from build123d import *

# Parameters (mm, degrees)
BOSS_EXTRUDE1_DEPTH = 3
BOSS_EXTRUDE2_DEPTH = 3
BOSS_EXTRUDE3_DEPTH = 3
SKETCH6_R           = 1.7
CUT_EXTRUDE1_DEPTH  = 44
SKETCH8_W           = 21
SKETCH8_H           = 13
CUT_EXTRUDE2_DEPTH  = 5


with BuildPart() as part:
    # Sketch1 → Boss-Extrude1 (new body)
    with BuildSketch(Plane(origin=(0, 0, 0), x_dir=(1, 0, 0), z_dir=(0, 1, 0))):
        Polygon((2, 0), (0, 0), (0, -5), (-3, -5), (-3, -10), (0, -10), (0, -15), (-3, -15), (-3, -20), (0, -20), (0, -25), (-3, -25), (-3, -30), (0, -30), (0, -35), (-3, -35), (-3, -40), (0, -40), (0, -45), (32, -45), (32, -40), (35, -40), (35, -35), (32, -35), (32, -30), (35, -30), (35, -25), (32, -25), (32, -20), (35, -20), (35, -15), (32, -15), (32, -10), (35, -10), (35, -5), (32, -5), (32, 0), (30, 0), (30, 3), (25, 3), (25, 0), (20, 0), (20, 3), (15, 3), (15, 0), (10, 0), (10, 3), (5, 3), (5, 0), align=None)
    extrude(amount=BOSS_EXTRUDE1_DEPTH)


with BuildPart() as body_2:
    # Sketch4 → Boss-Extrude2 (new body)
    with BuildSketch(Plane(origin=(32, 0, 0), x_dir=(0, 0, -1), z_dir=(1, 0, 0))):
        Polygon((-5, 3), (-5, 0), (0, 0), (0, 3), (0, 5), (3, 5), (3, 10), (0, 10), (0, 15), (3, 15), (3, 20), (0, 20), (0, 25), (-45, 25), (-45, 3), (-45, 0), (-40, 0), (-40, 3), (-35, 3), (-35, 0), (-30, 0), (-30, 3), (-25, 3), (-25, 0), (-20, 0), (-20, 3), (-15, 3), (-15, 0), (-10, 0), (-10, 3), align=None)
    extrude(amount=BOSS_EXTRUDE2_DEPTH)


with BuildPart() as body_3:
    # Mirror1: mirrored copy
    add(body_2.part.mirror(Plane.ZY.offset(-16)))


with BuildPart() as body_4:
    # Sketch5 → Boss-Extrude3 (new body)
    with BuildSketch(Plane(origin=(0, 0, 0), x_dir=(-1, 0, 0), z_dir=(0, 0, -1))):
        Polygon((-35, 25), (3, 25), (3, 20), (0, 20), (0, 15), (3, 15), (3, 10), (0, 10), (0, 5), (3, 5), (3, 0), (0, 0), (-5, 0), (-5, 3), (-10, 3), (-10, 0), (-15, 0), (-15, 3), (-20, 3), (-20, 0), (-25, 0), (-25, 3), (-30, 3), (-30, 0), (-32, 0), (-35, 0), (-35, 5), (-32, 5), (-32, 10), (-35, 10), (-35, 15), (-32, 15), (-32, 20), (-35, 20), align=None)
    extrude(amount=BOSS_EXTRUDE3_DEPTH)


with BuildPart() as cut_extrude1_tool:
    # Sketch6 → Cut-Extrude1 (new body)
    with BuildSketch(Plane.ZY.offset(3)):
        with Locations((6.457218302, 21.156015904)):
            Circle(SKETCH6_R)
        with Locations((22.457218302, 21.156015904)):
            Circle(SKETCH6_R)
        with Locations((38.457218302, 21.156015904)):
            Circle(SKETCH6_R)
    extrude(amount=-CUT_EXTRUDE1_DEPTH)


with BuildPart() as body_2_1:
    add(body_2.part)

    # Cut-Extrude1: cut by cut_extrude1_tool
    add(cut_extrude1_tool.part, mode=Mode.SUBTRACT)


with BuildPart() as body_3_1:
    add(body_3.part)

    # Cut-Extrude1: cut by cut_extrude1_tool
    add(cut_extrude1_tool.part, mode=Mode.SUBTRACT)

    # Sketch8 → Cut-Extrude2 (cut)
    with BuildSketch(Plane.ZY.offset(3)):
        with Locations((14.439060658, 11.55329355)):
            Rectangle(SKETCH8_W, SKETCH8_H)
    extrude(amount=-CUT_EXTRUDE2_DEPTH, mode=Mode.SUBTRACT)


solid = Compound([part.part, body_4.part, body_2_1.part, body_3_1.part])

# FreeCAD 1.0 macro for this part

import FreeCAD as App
import Part
import Sketcher

V = App.Vector


def add_polygon(sketch, points):
    """Adds a closed chain of lines whose ends are joined by coincident constraints."""
    first, n = sketch.GeometryCount, len(points)
    for a, b in zip(points, points[1:] + points[:1]):
        sketch.addGeometry(Part.LineSegment(App.Vector(*a, 0), App.Vector(*b, 0)), False)
    for i in range(n):
        sketch.addConstraint(Sketcher.Constraint("Coincident", first + i, 2, first + (i + 1) % n, 1))

doc = App.newDocument("Part")
params = doc.addObject("Spreadsheet::Sheet", "Params")
for row, (alias, value) in enumerate([
    ("sketch1_width", "3 mm"),
    ("sketch1_width2", "32 mm"),
    ("sketch1_width3", "2 mm"),
    ("pad1_length", "3 mm"),
    ("sketch2_width", "3 mm"),
    ("sketch2_width2", "5 mm"),
    ("pad2_length", "3 mm"),
    ("sketch3_width", "38 mm"),
    ("sketch3_width2", "3 mm"),
    ("sketch3_width3", "5 mm"),
    ("pad3_length", "3 mm"),
    ("sketch4_diameter", "3.4 mm"),
    ("pad4_length", "44 mm"),
    ("sketch5_width", "13 mm"),
    ("sketch5_height", "21 mm"),
    ("pocket1_length", "5 mm"),
], start=1):
    params.set(f"A{row}", alias)
    params.set(f"B{row}", "=" + value)
    params.setAlias(f"B{row}", alias)

body = doc.addObject("PartDesign::Body", "Body")

sketch1 = doc.addObject("Sketcher::SketchObject", "Sketch")
body.addObject(sketch1)
sketch1.AttachmentSupport = (doc.XZ_Plane, [""])
sketch1.MapMode = "FlatFace"
add_polygon(sketch1, [(0, 0), (0, 5), (-3, 5), (-3, 10), (0, 10), (0, 15), (-3, 15), (-3, 20), (0, 20), (0, 25), (-3, 25), (-3, 30), (0, 30), (0, 35), (-3, 35), (-3, 40), (0, 40), (0, 45), (32, 45), (32, 40), (35, 40), (35, 35), (32, 35), (32, 30), (35, 30), (35, 25), (32, 25), (32, 20), (35, 20), (35, 15), (32, 15), (32, 10), (35, 10), (35, 5), (32, 5), (32, 0), (30, 0), (30, -3), (25, -3), (25, 0), (20, 0), (20, -3), (15, -3), (15, 0), (10, 0), (10, -3), (5, -3), (5, 0)])
sketch1.addConstraint([
    Sketcher.Constraint("Vertical", 0),
    Sketcher.Constraint("Horizontal", 1),
    Sketcher.Constraint("Vertical", 2),
    Sketcher.Constraint("Horizontal", 3),
    Sketcher.Constraint("Vertical", 4),
    Sketcher.Constraint("Horizontal", 5),
    Sketcher.Constraint("Vertical", 6),
    Sketcher.Constraint("Horizontal", 7),
    Sketcher.Constraint("Vertical", 8),
    Sketcher.Constraint("Horizontal", 9),
    Sketcher.Constraint("Vertical", 10),
    Sketcher.Constraint("Horizontal", 11),
    Sketcher.Constraint("Vertical", 12),
    Sketcher.Constraint("Horizontal", 13),
    Sketcher.Constraint("Vertical", 14),
    Sketcher.Constraint("Horizontal", 15),
    Sketcher.Constraint("Vertical", 16),
    Sketcher.Constraint("Horizontal", 17),
    Sketcher.Constraint("Vertical", 18),
    Sketcher.Constraint("Horizontal", 19),
    Sketcher.Constraint("Vertical", 20),
    Sketcher.Constraint("Horizontal", 21),
    Sketcher.Constraint("Vertical", 22),
    Sketcher.Constraint("Horizontal", 23),
    Sketcher.Constraint("Vertical", 24),
    Sketcher.Constraint("Horizontal", 25),
    Sketcher.Constraint("Vertical", 26),
    Sketcher.Constraint("Horizontal", 27),
    Sketcher.Constraint("Vertical", 28),
    Sketcher.Constraint("Horizontal", 29),
    Sketcher.Constraint("Vertical", 30),
    Sketcher.Constraint("Horizontal", 31),
    Sketcher.Constraint("Vertical", 32),
    Sketcher.Constraint("Horizontal", 33),
    Sketcher.Constraint("Vertical", 34),
    Sketcher.Constraint("Horizontal", 35),
    Sketcher.Constraint("Vertical", 36),
    Sketcher.Constraint("Horizontal", 37),
    Sketcher.Constraint("Vertical", 38),
    Sketcher.Constraint("Horizontal", 39),
    Sketcher.Constraint("Vertical", 40),
    Sketcher.Constraint("Horizontal", 41),
    Sketcher.Constraint("Vertical", 42),
    Sketcher.Constraint("Horizontal", 43),
    Sketcher.Constraint("Vertical", 44),
    Sketcher.Constraint("Horizontal", 45),
    Sketcher.Constraint("Vertical", 46),
    Sketcher.Constraint("Horizontal", 47),
    Sketcher.Constraint("Coincident", 47, 2, -1, 1),
    Sketcher.Constraint("PointOnObject", 3, 2, -2),
    Sketcher.Constraint("PointOnObject", 7, 2, -2),
    Sketcher.Constraint("PointOnObject", 11, 2, -2),
    Sketcher.Constraint("PointOnObject", 15, 2, -2),
    Sketcher.Constraint("PointOnObject", 34, 2, -1),
    Sketcher.Constraint("PointOnObject", 38, 2, -1),
    Sketcher.Constraint("PointOnObject", 42, 2, -1),
    Sketcher.Constraint("Horizontal", 15, 2, 18, 2),
    Sketcher.Constraint("Horizontal", 13, 2, 20, 2),
    Sketcher.Constraint("Horizontal", 11, 2, 22, 2),
    Sketcher.Constraint("Horizontal", 9, 2, 24, 2),
    Sketcher.Constraint("Horizontal", 7, 2, 26, 2),
    Sketcher.Constraint("Horizontal", 5, 2, 28, 2),
    Sketcher.Constraint("Horizontal", 3, 2, 30, 2),
    Sketcher.Constraint("Horizontal", 1, 2, 32, 2),
    Sketcher.Constraint("Horizontal", 37, 2, 40, 2),
    Sketcher.Constraint("Horizontal", 41, 2, 44, 2),
    Sketcher.Constraint("Vertical", 2, 2, 5, 2),
    Sketcher.Constraint("Vertical", 6, 2, 9, 2),
    Sketcher.Constraint("Vertical", 10, 2, 13, 2),
    Sketcher.Constraint("Vertical", 18, 2, 21, 2),
    Sketcher.Constraint("Vertical", 20, 2, 23, 2),
    Sketcher.Constraint("Vertical", 22, 2, 25, 2),
    Sketcher.Constraint("Vertical", 24, 2, 27, 2),
    Sketcher.Constraint("Vertical", 26, 2, 29, 2),
    Sketcher.Constraint("Vertical", 28, 2, 31, 2),
    Sketcher.Constraint("Vertical", 30, 2, 33, 2),
    Sketcher.Constraint("Equal", 15, 19),
    Sketcher.Constraint("Equal", 37, 39),
    Sketcher.Constraint("Equal", 39, 41),
    Sketcher.Constraint("Equal", 41, 43),
    Sketcher.Constraint("Equal", 43, 45),
    Sketcher.Constraint("Equal", 45, 47),
    Sketcher.Constraint("Equal", 47, 0),
    Sketcher.Constraint("Equal", 0, 2),
    Sketcher.Constraint("Equal", 2, 4),
    Sketcher.Constraint("Equal", 4, 6),
    Sketcher.Constraint("Equal", 6, 8),
    Sketcher.Constraint("Equal", 8, 10),
    Sketcher.Constraint("Equal", 10, 12),
    Sketcher.Constraint("Equal", 12, 14),
    Sketcher.Constraint("Equal", 14, 16),
    Sketcher.Constraint("Equal", 33, 36),
    Sketcher.Constraint("DistanceX", 1, 2, 1, 1, 3.0),
    Sketcher.Constraint("DistanceX", 17, 1, 17, 2, 32.0),
    Sketcher.Constraint("DistanceX", 35, 2, 35, 1, 2.0),
])
sketch1.setExpression("Constraints[140]", "Params.sketch1_width")
sketch1.setExpression("Constraints[141]", "Params.sketch1_width2")
sketch1.setExpression("Constraints[142]", "Params.sketch1_width3")
pad1 = doc.addObject("PartDesign::Pad", "Pad")
body.addObject(pad1)
pad1.Profile = sketch1
pad1.setExpression("Length", "Params.pad1_length")
pad1.Reversed = True
body2 = doc.addObject("PartDesign::Body", "Body001")

sketch2 = doc.addObject("Sketcher::SketchObject", "Sketch001")
body2.addObject(sketch2)
sketch2.AttachmentSupport = (doc.getObject("YZ_Plane001"), [""])
sketch2.MapMode = "FlatFace"
sketch2.AttachmentOffset = App.Placement(V(0, 0, 32), App.Rotation())
add_polygon(sketch2, [(3, 5), (0, 5), (0, 0), (5, 0), (5, -3), (10, -3), (10, 0), (15, 0), (15, -3), (20, -3), (20, 0), (25, 0), (25, 45), (0, 45), (0, 40), (3, 40), (3, 35), (0, 35), (0, 30), (3, 30), (3, 25), (0, 25), (0, 20), (3, 20), (3, 15), (0, 15), (0, 10), (3, 10)])
sketch2.addConstraint([
    Sketcher.Constraint("Horizontal", 0),
    Sketcher.Constraint("Vertical", 1),
    Sketcher.Constraint("Horizontal", 2),
    Sketcher.Constraint("Vertical", 3),
    Sketcher.Constraint("Horizontal", 4),
    Sketcher.Constraint("Vertical", 5),
    Sketcher.Constraint("Horizontal", 6),
    Sketcher.Constraint("Vertical", 7),
    Sketcher.Constraint("Horizontal", 8),
    Sketcher.Constraint("Vertical", 9),
    Sketcher.Constraint("Horizontal", 10),
    Sketcher.Constraint("Vertical", 11),
    Sketcher.Constraint("Horizontal", 12),
    Sketcher.Constraint("Vertical", 13),
    Sketcher.Constraint("Horizontal", 14),
    Sketcher.Constraint("Vertical", 15),
    Sketcher.Constraint("Horizontal", 16),
    Sketcher.Constraint("Vertical", 17),
    Sketcher.Constraint("Horizontal", 18),
    Sketcher.Constraint("Vertical", 19),
    Sketcher.Constraint("Horizontal", 20),
    Sketcher.Constraint("Vertical", 21),
    Sketcher.Constraint("Horizontal", 22),
    Sketcher.Constraint("Vertical", 23),
    Sketcher.Constraint("Horizontal", 24),
    Sketcher.Constraint("Vertical", 25),
    Sketcher.Constraint("Horizontal", 26),
    Sketcher.Constraint("Vertical", 27),
    Sketcher.Constraint("Coincident", 1, 2, -1, 1),
    Sketcher.Constraint("PointOnObject", 5, 2, -1),
    Sketcher.Constraint("PointOnObject", 9, 2, -1),
    Sketcher.Constraint("PointOnObject", 12, 2, -2),
    Sketcher.Constraint("PointOnObject", 16, 2, -2),
    Sketcher.Constraint("PointOnObject", 20, 2, -2),
    Sketcher.Constraint("PointOnObject", 24, 2, -2),
    Sketcher.Constraint("Horizontal", 4, 2, 7, 2),
    Sketcher.Constraint("Vertical", 15, 2, 18, 2),
    Sketcher.Constraint("Vertical", 19, 2, 22, 2),
    Sketcher.Constraint("Vertical", 23, 2, 26, 2),
    Sketcher.Constraint("Equal", 2, 4),
    Sketcher.Constraint("Equal", 4, 6),
    Sketcher.Constraint("Equal", 6, 8),
    Sketcher.Constraint("Equal", 8, 10),
    Sketcher.Constraint("Equal", 10, 1),
    Sketcher.Constraint("Equal", 26, 3),
    Sketcher.Constraint("Equal", 1, 13),
    Sketcher.Constraint("Equal", 13, 15),
    Sketcher.Constraint("Equal", 15, 17),
    Sketcher.Constraint("Equal", 17, 19),
    Sketcher.Constraint("Equal", 19, 21),
    Sketcher.Constraint("Equal", 21, 23),
    Sketcher.Constraint("Equal", 23, 25),
    Sketcher.Constraint("Equal", 25, 27),
    Sketcher.Constraint("DistanceX", 0, 2, 0, 1, 3.0),
    Sketcher.Constraint("DistanceX", 2, 1, 2, 2, 5.0),
])
sketch2.setExpression("Constraints[81]", "Params.sketch2_width")
sketch2.setExpression("Constraints[82]", "Params.sketch2_width2")
pad2 = doc.addObject("PartDesign::Pad", "Pad001")
body2.addObject(pad2)
pad2.Profile = sketch2
pad2.setExpression("Length", "Params.pad2_length")
body3 = doc.addObject("PartDesign::Body", "Body002")
doc.recompute()

mirroring = doc.addObject("Part::Mirroring", "Mirroring")
mirroring.Source = body2
mirroring.Base = V(16, 0, 0)
mirroring.Normal = V(-1, 0, 0)
body3.BaseFeature = mirroring
doc.recompute()
body4 = doc.addObject("PartDesign::Body", "Body003")

sketch3 = doc.addObject("Sketcher::SketchObject", "Sketch002")
body4.addObject(sketch3)
sketch3.AttachmentSupport = (doc.getObject("XY_Plane003"), [""])
sketch3.MapMode = "FlatFace"
add_polygon(sketch3, [(-3, 25), (35, 25), (35, 20), (32, 20), (32, 15), (35, 15), (35, 10), (32, 10), (32, 5), (35, 5), (35, 0), (30, 0), (30, 3), (25, 3), (25, 0), (20, 0), (20, 3), (15, 3), (15, 0), (10, 0), (10, 3), (5, 3), (5, 0), (-3, 0), (-3, 5), (0, 5), (0, 10), (-3, 10), (-3, 15), (0, 15), (0, 20), (-3, 20)])
sketch3.addConstraint([
    Sketcher.Constraint("Horizontal", 0),
    Sketcher.Constraint("Vertical", 1),
    Sketcher.Constraint("Horizontal", 2),
    Sketcher.Constraint("Vertical", 3),
    Sketcher.Constraint("Horizontal", 4),
    Sketcher.Constraint("Vertical", 5),
    Sketcher.Constraint("Horizontal", 6),
    Sketcher.Constraint("Vertical", 7),
    Sketcher.Constraint("Horizontal", 8),
    Sketcher.Constraint("Vertical", 9),
    Sketcher.Constraint("Horizontal", 10),
    Sketcher.Constraint("Vertical", 11),
    Sketcher.Constraint("Horizontal", 12),
    Sketcher.Constraint("Vertical", 13),
    Sketcher.Constraint("Horizontal", 14),
    Sketcher.Constraint("Vertical", 15),
    Sketcher.Constraint("Horizontal", 16),
    Sketcher.Constraint("Vertical", 17),
    Sketcher.Constraint("Horizontal", 18),
    Sketcher.Constraint("Vertical", 19),
    Sketcher.Constraint("Horizontal", 20),
    Sketcher.Constraint("Vertical", 21),
    Sketcher.Constraint("Horizontal", 22),
    Sketcher.Constraint("Vertical", 23),
    Sketcher.Constraint("Horizontal", 24),
    Sketcher.Constraint("Vertical", 25),
    Sketcher.Constraint("Horizontal", 26),
    Sketcher.Constraint("Vertical", 27),
    Sketcher.Constraint("Horizontal", 28),
    Sketcher.Constraint("Vertical", 29),
    Sketcher.Constraint("Horizontal", 30),
    Sketcher.Constraint("Vertical", 31),
    Sketcher.Constraint("PointOnObject", 9, 2, -1),
    Sketcher.Constraint("PointOnObject", 13, 2, -1),
    Sketcher.Constraint("PointOnObject", 17, 2, -1),
    Sketcher.Constraint("PointOnObject", 21, 2, -1),
    Sketcher.Constraint("PointOnObject", 24, 2, -2),
    Sketcher.Constraint("PointOnObject", 28, 2, -2),
    Sketcher.Constraint("Horizontal", 12, 2, 15, 2),
    Sketcher.Constraint("Horizontal", 16, 2, 19, 2),
    Sketcher.Constraint("Horizontal", 8, 2, 23, 2),
    Sketcher.Constraint("Horizontal", 6, 2, 25, 2),
    Sketcher.Constraint("Horizontal", 4, 2, 27, 2),
    Sketcher.Constraint("Horizontal", 2, 2, 29, 2),
    Sketcher.Constraint("Vertical", 1, 2, 4, 2),
    Sketcher.Constraint("Vertical", 3, 2, 6, 2),
    Sketcher.Constraint("Vertical", 5, 2, 8, 2),
    Sketcher.Constraint("Vertical", 23, 2, 26, 2),
    Sketcher.Constraint("Vertical", 27, 2, 30, 2),
    Sketcher.Constraint("Equal", 10, 12),
    Sketcher.Constraint("Equal", 12, 14),
    Sketcher.Constraint("Equal", 14, 16),
    Sketcher.Constraint("Equal", 16, 18),
    Sketcher.Constraint("Equal", 18, 20),
    Sketcher.Constraint("Equal", 8, 24),
    Sketcher.Constraint("Equal", 20, 1),
    Sketcher.Constraint("Equal", 1, 3),
    Sketcher.Constraint("Equal", 3, 5),
    Sketcher.Constraint("Equal", 5, 7),
    Sketcher.Constraint("Equal", 7, 9),
    Sketcher.Constraint("Equal", 30, 11),
    Sketcher.Constraint("DistanceX", 0, 1, 0, 2, 38.0),
    Sketcher.Constraint("DistanceX", 2, 2, 2, 1, 3.0),
    Sketcher.Constraint("DistanceX", 10, 2, 10, 1, 5.0),
])
sketch3.setExpression("Constraints[93]", "Params.sketch3_width")
sketch3.setExpression("Constraints[94]", "Params.sketch3_width2")
sketch3.setExpression("Constraints[95]", "Params.sketch3_width3")
pad3 = doc.addObject("PartDesign::Pad", "Pad002")
body4.addObject(pad3)
pad3.Profile = sketch3
pad3.setExpression("Length", "Params.pad3_length")
pad3.Reversed = True
body5 = doc.addObject("PartDesign::Body", "Body004")
body5.AllowCompound = True

sketch4 = doc.addObject("Sketcher::SketchObject", "Sketch003")
body5.addObject(sketch4)
sketch4.AttachmentSupport = (doc.getObject("YZ_Plane004"), [""])
sketch4.MapMode = "FlatFace"
sketch4.AttachmentOffset = App.Placement(V(0, 0, -3), App.Rotation())
sketch4.addGeometry([
    Part.Circle(V(21.2, 6.5, 0), V(0, 0, 1), 1.7),
    Part.Circle(V(21.2, 22.5, 0), V(0, 0, 1), 1.7),
    Part.Circle(V(21.2, 38.5, 0), V(0, 0, 1), 1.7),
], False)
sketch4.addConstraint([
    Sketcher.Constraint("Equal", 0, 1),
    Sketcher.Constraint("Equal", 1, 2),
    Sketcher.Constraint("Vertical", 0, 3, 1, 3),
    Sketcher.Constraint("Vertical", 1, 3, 2, 3),
    Sketcher.Constraint("Diameter", 0, 3.4),
    Sketcher.Constraint("DistanceY", 0, 3, 1, 3, 16.0),
    Sketcher.Constraint("DistanceY", 1, 3, 2, 3, 16.0),
    Sketcher.Constraint("DistanceY", -1, 1, 0, 3, 6.457218),
    Sketcher.Constraint("DistanceX", -1, 1, 0, 3, 21.156016),
])
sketch4.setExpression("Constraints[4]", "Params.sketch4_diameter")
pad4 = doc.addObject("PartDesign::Pad", "Pad003")
body5.addObject(pad4)
pad4.Profile = sketch4
pad4.setExpression("Length", "Params.pad4_length")
doc.recompute()

body6 = doc.addObject("PartDesign::Body", "Body005")
body6.BaseFeature = body5
boolean = doc.addObject("PartDesign::Boolean", "Boolean")
body2.addObject(boolean)
boolean.Type = "Cut"
boolean.addObjects([body6])
doc.recompute()

boolean2 = doc.addObject("PartDesign::Boolean", "Boolean001")
body3.addObject(boolean2)
boolean2.Type = "Cut"
boolean2.addObjects([body5])

sketch5 = doc.addObject("Sketcher::SketchObject", "Sketch004")
body3.addObject(sketch5)
sketch5.AttachmentSupport = (doc.getObject("YZ_Plane002"), [""])
sketch5.MapMode = "FlatFace"
sketch5.AttachmentOffset = App.Placement(V(0, 0, -3), App.Rotation())
add_polygon(sketch5, [(18, 4), (5, 4), (5, 25), (18, 25)])
sketch5.addConstraint([
    Sketcher.Constraint("Horizontal", 0),
    Sketcher.Constraint("Vertical", 1),
    Sketcher.Constraint("Horizontal", 2),
    Sketcher.Constraint("Vertical", 3),
    Sketcher.Constraint("DistanceX", 0, 2, 0, 1, 13.0),
    Sketcher.Constraint("DistanceY", 1, 1, 1, 2, 21.0),
    Sketcher.Constraint("DistanceY", -1, 1, 0, 2, 3.939061),
    Sketcher.Constraint("DistanceX", -1, 1, 0, 2, 5.053294),
])
sketch5.setExpression("Constraints[8]", "Params.sketch5_width")
sketch5.setExpression("Constraints[9]", "Params.sketch5_height")
pocket1 = doc.addObject("PartDesign::Pocket", "Pocket")
body3.addObject(pocket1)
pocket1.Profile = sketch5
pocket1.setExpression("Length", "Params.pocket1_length")
pocket1.Reversed = True
mirroring.Visibility = False

doc.recompute()
